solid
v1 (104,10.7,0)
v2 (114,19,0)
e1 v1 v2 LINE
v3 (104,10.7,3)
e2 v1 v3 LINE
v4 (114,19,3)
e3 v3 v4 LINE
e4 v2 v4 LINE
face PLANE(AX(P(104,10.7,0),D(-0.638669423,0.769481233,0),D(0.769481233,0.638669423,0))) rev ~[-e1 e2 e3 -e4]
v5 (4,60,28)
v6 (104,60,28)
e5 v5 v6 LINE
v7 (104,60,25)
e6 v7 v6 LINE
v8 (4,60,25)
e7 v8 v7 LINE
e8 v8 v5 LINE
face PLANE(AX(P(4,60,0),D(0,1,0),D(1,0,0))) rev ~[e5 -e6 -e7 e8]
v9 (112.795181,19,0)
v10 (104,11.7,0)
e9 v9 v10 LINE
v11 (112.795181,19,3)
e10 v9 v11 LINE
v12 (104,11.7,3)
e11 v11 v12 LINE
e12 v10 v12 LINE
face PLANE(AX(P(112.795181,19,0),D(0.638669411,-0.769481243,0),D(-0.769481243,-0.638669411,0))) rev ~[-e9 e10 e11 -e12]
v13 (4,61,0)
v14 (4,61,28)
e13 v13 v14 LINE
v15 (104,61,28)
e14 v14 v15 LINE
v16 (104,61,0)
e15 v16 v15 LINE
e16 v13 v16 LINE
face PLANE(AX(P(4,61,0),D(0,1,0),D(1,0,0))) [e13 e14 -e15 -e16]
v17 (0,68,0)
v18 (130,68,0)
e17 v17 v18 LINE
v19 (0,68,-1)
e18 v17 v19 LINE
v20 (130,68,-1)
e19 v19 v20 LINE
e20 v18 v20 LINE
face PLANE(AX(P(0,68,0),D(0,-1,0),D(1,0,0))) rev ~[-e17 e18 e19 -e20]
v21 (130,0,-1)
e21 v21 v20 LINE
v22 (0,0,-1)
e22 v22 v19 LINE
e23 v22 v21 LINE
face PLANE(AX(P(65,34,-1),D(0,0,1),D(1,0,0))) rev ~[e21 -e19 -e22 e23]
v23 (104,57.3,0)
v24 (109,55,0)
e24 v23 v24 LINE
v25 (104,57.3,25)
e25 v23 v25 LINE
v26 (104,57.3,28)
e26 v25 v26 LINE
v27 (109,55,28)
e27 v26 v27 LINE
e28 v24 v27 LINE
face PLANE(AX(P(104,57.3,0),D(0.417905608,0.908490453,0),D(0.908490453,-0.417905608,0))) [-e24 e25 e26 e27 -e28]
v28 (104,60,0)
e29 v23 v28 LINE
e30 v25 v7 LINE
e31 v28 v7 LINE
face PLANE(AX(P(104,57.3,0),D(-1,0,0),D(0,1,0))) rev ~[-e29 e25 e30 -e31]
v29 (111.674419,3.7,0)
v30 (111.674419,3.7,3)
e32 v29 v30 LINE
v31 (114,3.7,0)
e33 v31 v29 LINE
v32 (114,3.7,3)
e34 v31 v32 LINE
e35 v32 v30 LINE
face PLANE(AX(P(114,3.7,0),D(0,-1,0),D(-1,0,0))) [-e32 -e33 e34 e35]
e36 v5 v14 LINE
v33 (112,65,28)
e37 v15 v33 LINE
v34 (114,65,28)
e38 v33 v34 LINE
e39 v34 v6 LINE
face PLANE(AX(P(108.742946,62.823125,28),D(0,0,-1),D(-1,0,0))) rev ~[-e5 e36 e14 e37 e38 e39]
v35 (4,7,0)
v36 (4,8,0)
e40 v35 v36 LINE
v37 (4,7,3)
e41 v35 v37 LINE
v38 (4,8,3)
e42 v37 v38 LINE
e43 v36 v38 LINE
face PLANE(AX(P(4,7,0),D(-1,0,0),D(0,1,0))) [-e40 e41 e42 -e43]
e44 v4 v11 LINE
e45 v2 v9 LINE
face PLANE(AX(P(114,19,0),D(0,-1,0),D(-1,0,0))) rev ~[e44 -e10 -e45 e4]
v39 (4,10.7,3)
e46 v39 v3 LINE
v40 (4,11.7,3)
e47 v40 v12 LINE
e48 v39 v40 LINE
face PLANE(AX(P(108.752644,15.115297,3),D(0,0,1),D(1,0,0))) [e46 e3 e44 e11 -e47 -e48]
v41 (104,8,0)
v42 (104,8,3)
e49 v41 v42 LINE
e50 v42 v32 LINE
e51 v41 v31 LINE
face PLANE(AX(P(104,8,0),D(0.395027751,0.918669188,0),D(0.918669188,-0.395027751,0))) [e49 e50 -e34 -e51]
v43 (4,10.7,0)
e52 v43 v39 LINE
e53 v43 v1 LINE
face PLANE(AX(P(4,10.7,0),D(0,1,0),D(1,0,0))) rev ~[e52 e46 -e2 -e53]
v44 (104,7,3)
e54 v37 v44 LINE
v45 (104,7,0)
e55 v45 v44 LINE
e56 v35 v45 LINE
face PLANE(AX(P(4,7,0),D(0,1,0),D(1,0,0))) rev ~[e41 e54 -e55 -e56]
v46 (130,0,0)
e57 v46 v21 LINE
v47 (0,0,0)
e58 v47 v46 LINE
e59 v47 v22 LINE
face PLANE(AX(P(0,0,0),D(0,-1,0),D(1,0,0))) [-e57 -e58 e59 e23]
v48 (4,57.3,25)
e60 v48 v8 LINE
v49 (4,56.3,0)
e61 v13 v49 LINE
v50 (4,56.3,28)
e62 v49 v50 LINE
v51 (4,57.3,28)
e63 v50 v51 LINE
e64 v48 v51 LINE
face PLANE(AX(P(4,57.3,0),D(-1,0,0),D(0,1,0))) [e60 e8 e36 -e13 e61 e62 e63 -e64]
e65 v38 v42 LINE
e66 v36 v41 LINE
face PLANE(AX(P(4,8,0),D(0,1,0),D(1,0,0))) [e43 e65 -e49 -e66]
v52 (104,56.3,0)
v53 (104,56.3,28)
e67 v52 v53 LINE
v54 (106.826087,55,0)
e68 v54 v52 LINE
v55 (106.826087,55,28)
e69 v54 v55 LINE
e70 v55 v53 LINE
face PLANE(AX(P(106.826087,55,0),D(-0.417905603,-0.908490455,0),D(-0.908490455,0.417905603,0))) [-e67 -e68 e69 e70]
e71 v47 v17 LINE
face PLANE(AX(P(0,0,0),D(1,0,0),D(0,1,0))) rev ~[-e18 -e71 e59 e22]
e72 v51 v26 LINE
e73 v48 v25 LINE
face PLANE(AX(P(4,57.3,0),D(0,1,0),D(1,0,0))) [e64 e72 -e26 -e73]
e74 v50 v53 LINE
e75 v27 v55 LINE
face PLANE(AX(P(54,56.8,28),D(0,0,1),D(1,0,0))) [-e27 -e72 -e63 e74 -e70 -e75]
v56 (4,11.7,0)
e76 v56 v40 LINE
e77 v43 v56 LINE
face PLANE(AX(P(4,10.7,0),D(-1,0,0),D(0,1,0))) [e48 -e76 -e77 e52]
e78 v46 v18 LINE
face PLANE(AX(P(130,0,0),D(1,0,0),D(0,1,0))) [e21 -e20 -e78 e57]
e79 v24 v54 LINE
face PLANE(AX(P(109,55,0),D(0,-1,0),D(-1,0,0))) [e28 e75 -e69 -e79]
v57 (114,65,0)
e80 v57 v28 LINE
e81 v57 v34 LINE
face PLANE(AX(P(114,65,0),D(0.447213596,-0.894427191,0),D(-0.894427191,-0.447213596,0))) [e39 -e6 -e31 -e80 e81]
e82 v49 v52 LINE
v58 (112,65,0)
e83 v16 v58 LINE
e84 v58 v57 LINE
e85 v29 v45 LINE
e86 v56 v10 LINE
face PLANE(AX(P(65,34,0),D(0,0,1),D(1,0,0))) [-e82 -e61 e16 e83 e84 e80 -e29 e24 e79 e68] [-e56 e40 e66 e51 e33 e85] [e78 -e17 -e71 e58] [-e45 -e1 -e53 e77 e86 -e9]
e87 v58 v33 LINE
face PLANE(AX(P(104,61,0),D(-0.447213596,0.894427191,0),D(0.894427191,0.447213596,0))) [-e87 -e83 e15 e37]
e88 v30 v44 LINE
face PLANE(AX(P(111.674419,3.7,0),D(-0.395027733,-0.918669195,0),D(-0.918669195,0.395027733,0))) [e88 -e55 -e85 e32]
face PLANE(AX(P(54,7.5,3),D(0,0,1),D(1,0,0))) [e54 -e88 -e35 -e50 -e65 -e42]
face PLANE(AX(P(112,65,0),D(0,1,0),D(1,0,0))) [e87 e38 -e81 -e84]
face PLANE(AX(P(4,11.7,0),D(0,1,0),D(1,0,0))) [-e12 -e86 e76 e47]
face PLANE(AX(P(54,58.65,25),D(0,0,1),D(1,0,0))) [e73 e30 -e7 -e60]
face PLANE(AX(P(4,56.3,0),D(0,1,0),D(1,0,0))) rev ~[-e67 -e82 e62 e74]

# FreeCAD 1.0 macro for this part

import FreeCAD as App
import Part
import Sketcher

V = App.Vector


def add_polygon(sketch, points):
    """Adds a closed chain of lines whose ends are joined by coincident constraints."""
    first, n = sketch.GeometryCount, len(points)
    for a, b in zip(points, points[1:] + points[:1]):
        sketch.addGeometry(Part.LineSegment(App.Vector(*a, 0), App.Vector(*b, 0)), False)
    for i in range(n):
        sketch.addConstraint(Sketcher.Constraint("Coincident", first + i, 2, first + (i + 1) % n, 1))

doc = App.newDocument("Part")
body = doc.addObject("PartDesign::Body", "Body")

# Sketch on XY plane
sketch1 = body.newObject("Sketcher::SketchObject", "Sketch")
sketch1.AttachmentSupport = (doc.getObject("XY_Plane"), [""])
sketch1.MapMode = "FlatFace"
add_polygon(sketch1, [(0, 68), (0, 0), (130, 0), (130, 68)])  # lines 0-3
sketch1.addConstraint(Sketcher.Constraint("Vertical", 0))
sketch1.addConstraint(Sketcher.Constraint("Horizontal", 1))
sketch1.addConstraint(Sketcher.Constraint("Vertical", 2))
sketch1.addConstraint(Sketcher.Constraint("Horizontal", 3))
sketch1.addConstraint(Sketcher.Constraint("Coincident", 0, 2, -1, 1))
sketch1.addConstraint(Sketcher.Constraint("DistanceX", 1, 1, 1, 2, 130.0))
sketch1.addConstraint(Sketcher.Constraint("DistanceY", 0, 2, 0, 1, 68.0))
pad1 = body.newObject("PartDesign::Pad", "Pad")
pad1.Profile = sketch1
pad1.Length = 1
pad1.Reversed = True

# Sketch on XY plane
sketch2 = body.newObject("Sketcher::SketchObject", "Sketch001")
sketch2.AttachmentSupport = (doc.getObject("XY_Plane"), [""])
sketch2.MapMode = "FlatFace"
add_polygon(sketch2, [(4, 8), (4, 7), (104, 7), (104, 8)])  # lines 0-3
sketch2.addConstraint(Sketcher.Constraint("Vertical", 0))
sketch2.addConstraint(Sketcher.Constraint("Horizontal", 1))
sketch2.addConstraint(Sketcher.Constraint("Vertical", 2))
sketch2.addConstraint(Sketcher.Constraint("Horizontal", 3))
sketch2.addConstraint(Sketcher.Constraint("DistanceX", 1, 1, 1, 2, 100.0))
sketch2.addConstraint(Sketcher.Constraint("DistanceY", 0, 2, 0, 1, 1.0))
sketch2.addConstraint(Sketcher.Constraint("DistanceX", -1, 1, 0, 2, 4.0))
sketch2.addConstraint(Sketcher.Constraint("DistanceY", -1, 1, 0, 2, 7.0))
pad2 = body.newObject("PartDesign::Pad", "Pad001")
pad2.Profile = sketch2
pad2.Length = 3

# Sketch on XY plane
sketch3 = body.newObject("Sketcher::SketchObject", "Sketch002")
sketch3.AttachmentSupport = (doc.getObject("XY_Plane"), [""])
sketch3.MapMode = "FlatFace"
add_polygon(sketch3, [(4, 11.7), (4, 10.7), (104, 10.7), (104, 11.7)])  # lines 0-3
sketch3.addConstraint(Sketcher.Constraint("Vertical", 0))
sketch3.addConstraint(Sketcher.Constraint("Horizontal", 1))
sketch3.addConstraint(Sketcher.Constraint("Vertical", 2))
sketch3.addConstraint(Sketcher.Constraint("Horizontal", 3))
sketch3.addConstraint(Sketcher.Constraint("DistanceX", 1, 1, 1, 2, 100.0))
sketch3.addConstraint(Sketcher.Constraint("DistanceY", 0, 2, 0, 1, 1.0))
sketch3.addConstraint(Sketcher.Constraint("DistanceX", -1, 1, 0, 2, 4.0))
sketch3.addConstraint(Sketcher.Constraint("DistanceY", -1, 1, 0, 2, 10.7))
pad3 = body.newObject("PartDesign::Pad", "Pad002")
pad3.Profile = sketch3
pad3.Length = 3

# Sketch on XY plane
sketch4 = body.newObject("Sketcher::SketchObject", "Sketch003")
sketch4.AttachmentSupport = (doc.getObject("XY_Plane"), [""])
sketch4.MapMode = "FlatFace"
add_polygon(sketch4, [(104, 10.7), (114, 19), (112.8, 19), (104, 11.7)])  # lines 0-3
add_polygon(sketch4, [(114, 3.7), (104, 8), (104, 7), (111.7, 3.7)])  # lines 4-7
sketch4.addConstraint(Sketcher.Constraint("Horizontal", 1))
sketch4.addConstraint(Sketcher.Constraint("Vertical", 3))
sketch4.addConstraint(Sketcher.Constraint("Vertical", 5))
sketch4.addConstraint(Sketcher.Constraint("Horizontal", 7))
sketch4.addConstraint(Sketcher.Constraint("Parallel", 0, 2))
sketch4.addConstraint(Sketcher.Constraint("Parallel", 4, 6))
sketch4.addConstraint(Sketcher.Constraint("Vertical", 3, 2, 4, 2))
sketch4.addConstraint(Sketcher.Constraint("Vertical", 0, 2, 7, 2))
sketch4.addConstraint(Sketcher.Constraint("Equal", 3, 5))
sketch4.addConstraint(Sketcher.Constraint("DistanceY", 3, 2, 3, 1, 1.0))
sketch4.addConstraint(Sketcher.Constraint("DistanceX", -1, 1, 0, 2, 114.0))
sketch4.addConstraint(Sketcher.Constraint("DistanceY", -1, 1, 0, 2, 19.0))
sketch4.addConstraint(Sketcher.Constraint("DistanceX", -1, 1, 2, 2, 104.0))
sketch4.addConstraint(Sketcher.Constraint("DistanceY", -1, 1, 4, 2, 8.0))
sketch4.addConstraint(Sketcher.Constraint("DistanceY", 6, 2, 3, 2, 7.0))
sketch4.addConstraint(Sketcher.Constraint("DistanceY", -1, 1, 2, 2, 11.7))
pad4 = body.newObject("PartDesign::Pad", "Pad003")
pad4.Profile = sketch4
pad4.Length = 3

# Sketch on XY plane
sketch5 = body.newObject("Sketcher::SketchObject", "Sketch004")
sketch5.AttachmentSupport = (doc.getObject("XY_Plane"), [""])
sketch5.MapMode = "FlatFace"
add_polygon(sketch5, [(4, 57.3), (4, 56.3), (104, 56.3), (104, 57.3)])  # lines 0-3
sketch5.addConstraint(Sketcher.Constraint("Vertical", 0))
sketch5.addConstraint(Sketcher.Constraint("Horizontal", 1))
sketch5.addConstraint(Sketcher.Constraint("Vertical", 2))
sketch5.addConstraint(Sketcher.Constraint("Horizontal", 3))
sketch5.addConstraint(Sketcher.Constraint("DistanceX", 1, 1, 1, 2, 100.0))
sketch5.addConstraint(Sketcher.Constraint("DistanceY", 0, 2, 0, 1, 1.0))
sketch5.addConstraint(Sketcher.Constraint("DistanceX", -1, 1, 0, 2, 4.0))
sketch5.addConstraint(Sketcher.Constraint("DistanceY", -1, 1, 0, 2, 56.3))
pad5 = body.newObject("PartDesign::Pad", "Pad004")
pad5.Profile = sketch5
pad5.Length = 28

# Sketch on XY plane
sketch6 = body.newObject("Sketcher::SketchObject", "Sketch005")
sketch6.AttachmentSupport = (doc.getObject("XY_Plane"), [""])
sketch6.MapMode = "FlatFace"
add_polygon(sketch6, [(4, 61), (4, 60), (104, 60), (104, 61)])  # lines 0-3
sketch6.addConstraint(Sketcher.Constraint("Vertical", 0))
sketch6.addConstraint(Sketcher.Constraint("Horizontal", 1))
sketch6.addConstraint(Sketcher.Constraint("Vertical", 2))
sketch6.addConstraint(Sketcher.Constraint("Horizontal", 3))
sketch6.addConstraint(Sketcher.Constraint("DistanceX", 1, 1, 1, 2, 100.0))
sketch6.addConstraint(Sketcher.Constraint("DistanceY", 0, 2, 0, 1, 1.0))
sketch6.addConstraint(Sketcher.Constraint("DistanceX", -1, 1, 0, 2, 4.0))
sketch6.addConstraint(Sketcher.Constraint("DistanceY", -1, 1, 0, 2, 60.0))
pad6 = body.newObject("PartDesign::Pad", "Pad005")
pad6.Profile = sketch6
pad6.Length = 28

# Sketch on XY plane
sketch7 = body.newObject("Sketcher::SketchObject", "Sketch006")
sketch7.AttachmentSupport = (doc.getObject("XY_Plane"), [""])
sketch7.MapMode = "FlatFace"
add_polygon(sketch7, [(112, 65), (104, 61), (104, 60), (114, 65)])  # lines 0-3
add_polygon(sketch7, [(109, 55), (104, 57.3), (104, 56.3), (106.8, 55)])  # lines 4-7
sketch7.addConstraint(Sketcher.Constraint("Vertical", 1))
sketch7.addConstraint(Sketcher.Constraint("Horizontal", 3))
sketch7.addConstraint(Sketcher.Constraint("Vertical", 5))
sketch7.addConstraint(Sketcher.Constraint("Horizontal", 7))
sketch7.addConstraint(Sketcher.Constraint("Parallel", 0, 2))
sketch7.addConstraint(Sketcher.Constraint("Parallel", 4, 6))
sketch7.addConstraint(Sketcher.Constraint("Vertical", 1, 2, 4, 2))
sketch7.addConstraint(Sketcher.Constraint("Equal", 1, 5))
sketch7.addConstraint(Sketcher.Constraint("DistanceX", 3, 2, 3, 1, 2.0))
sketch7.addConstraint(Sketcher.Constraint("DistanceY", 1, 2, 1, 1, 1.0))
sketch7.addConstraint(Sketcher.Constraint("DistanceX", -1, 1, 0, 2, 104.0))
sketch7.addConstraint(Sketcher.Constraint("DistanceY", -1, 1, 0, 2, 61.0))
sketch7.addConstraint(Sketcher.Constraint("DistanceX", -1, 1, 2, 2, 114.0))
sketch7.addConstraint(Sketcher.Constraint("DistanceY", -1, 1, 6, 2, 55.0))
sketch7.addConstraint(Sketcher.Constraint("DistanceX", -1, 1, 7, 2, 109.0))
sketch7.addConstraint(Sketcher.Constraint("DistanceY", -1, 1, 4, 2, 57.3))
pad7 = body.newObject("PartDesign::Pad", "Pad006")
pad7.Profile = sketch7
pad7.Length = 28

# Sketch on XY plane
sketch8 = body.newObject("Sketcher::SketchObject", "Sketch007")
sketch8.AttachmentSupport = (doc.getObject("XY_Plane"), [""])
sketch8.MapMode = "FlatFace"
add_polygon(sketch8, [(4, 60), (4, 57.3), (104, 57.3), (104, 60)])  # lines 0-3
sketch8.addConstraint(Sketcher.Constraint("Vertical", 0))
sketch8.addConstraint(Sketcher.Constraint("Horizontal", 1))
sketch8.addConstraint(Sketcher.Constraint("Vertical", 2))
sketch8.addConstraint(Sketcher.Constraint("Horizontal", 3))
sketch8.addConstraint(Sketcher.Constraint("DistanceX", 1, 1, 1, 2, 100.0))
sketch8.addConstraint(Sketcher.Constraint("DistanceY", 0, 2, 0, 1, 2.7))
sketch8.addConstraint(Sketcher.Constraint("DistanceX", -1, 1, 0, 2, 4.0))
sketch8.addConstraint(Sketcher.Constraint("DistanceY", -1, 1, 2, 2, 60.0))
pad8 = body.newObject("PartDesign::Pad", "Pad007")
pad8.Profile = sketch8
pad8.Length = 25

doc.recompute()
